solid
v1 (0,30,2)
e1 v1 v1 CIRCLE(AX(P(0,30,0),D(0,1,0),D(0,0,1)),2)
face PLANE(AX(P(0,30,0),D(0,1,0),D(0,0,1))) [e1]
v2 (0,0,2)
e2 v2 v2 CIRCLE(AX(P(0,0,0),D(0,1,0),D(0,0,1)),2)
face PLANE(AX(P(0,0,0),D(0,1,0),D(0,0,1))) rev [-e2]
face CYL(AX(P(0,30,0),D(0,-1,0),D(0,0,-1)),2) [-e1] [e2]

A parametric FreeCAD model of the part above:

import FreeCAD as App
import Part
import Sketcher
from FreeCAD import Vector

doc = App.newDocument("Part")
body = doc.addObject("PartDesign::Body", "Body")

sketch1 = body.newObject("Sketcher::SketchObject", "Sketch")
sketch1.AttachmentSupport = (doc.getObject("XZ_Plane"), [""])
sketch1.MapMode = "FlatFace"
sketch1.addGeometry(Part.Circle(Vector(0, 0, 0), Vector(0, 0, 1), 2), False)
sketch1.addConstraint(Sketcher.Constraint("Coincident", 0, 3, -1, 1))
sketch1.addConstraint(Sketcher.Constraint("Diameter", 0, 4.0))
pad1 = body.newObject("PartDesign::Pad", "Pad")
pad1.Profile = sketch1
pad1.Length = 30
pad1.Reversed = True

doc.recompute()
